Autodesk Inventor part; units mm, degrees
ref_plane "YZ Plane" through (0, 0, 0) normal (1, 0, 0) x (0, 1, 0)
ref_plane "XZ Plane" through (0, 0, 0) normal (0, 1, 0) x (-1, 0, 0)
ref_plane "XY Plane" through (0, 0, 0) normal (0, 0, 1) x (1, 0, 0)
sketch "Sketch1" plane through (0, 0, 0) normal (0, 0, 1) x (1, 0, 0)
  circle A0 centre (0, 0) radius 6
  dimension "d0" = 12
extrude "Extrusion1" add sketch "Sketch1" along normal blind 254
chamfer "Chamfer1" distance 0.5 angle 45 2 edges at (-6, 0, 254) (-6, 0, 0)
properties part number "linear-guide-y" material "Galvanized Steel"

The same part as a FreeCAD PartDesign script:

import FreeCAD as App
import Part
import Sketcher
Q = App.Units.Quantity


def edges_at(feature, points):
    """Names of the edges that pass closest to the given points."""
    edges = feature.Shape.Edges
    near = lambda p: min(range(len(edges)), key=lambda i: edges[i].distToShape(Part.Vertex(*p))[0])
    return sorted({f"Edge{near(p) + 1}" for p in points})

doc = App.newDocument("Part")
body = doc.addObject("PartDesign::Body", "Body")

sketch1 = doc.addObject("Sketcher::SketchObject", "Sketch")
body.addObject(sketch1)
sketch1.AttachmentSupport = (doc.XY_Plane, [""])
sketch1.MapMode = "FlatFace"
sketch1.addGeometry(Part.Circle(App.Vector(0, 0, 0), App.Vector(0, 0, 1), 6), False)
sketch1.addConstraint([
    Sketcher.Constraint("Coincident", 0, 3, -1, 1),
    Sketcher.Constraint("Diameter", 0, Q("12 mm")),
])
pad1 = doc.addObject("PartDesign::Pad", "Pad")
body.addObject(pad1)
pad1.Profile = sketch1
pad1.Length = 254
doc.recompute()

chamfer = doc.addObject("PartDesign::Chamfer", "Chamfer")
body.addObject(chamfer)
chamfer.Base = (pad1, edges_at(pad1, [(-6, 0, 254), (-6, 0, 0)]))
chamfer.Size = 0.5

doc.recompute()
